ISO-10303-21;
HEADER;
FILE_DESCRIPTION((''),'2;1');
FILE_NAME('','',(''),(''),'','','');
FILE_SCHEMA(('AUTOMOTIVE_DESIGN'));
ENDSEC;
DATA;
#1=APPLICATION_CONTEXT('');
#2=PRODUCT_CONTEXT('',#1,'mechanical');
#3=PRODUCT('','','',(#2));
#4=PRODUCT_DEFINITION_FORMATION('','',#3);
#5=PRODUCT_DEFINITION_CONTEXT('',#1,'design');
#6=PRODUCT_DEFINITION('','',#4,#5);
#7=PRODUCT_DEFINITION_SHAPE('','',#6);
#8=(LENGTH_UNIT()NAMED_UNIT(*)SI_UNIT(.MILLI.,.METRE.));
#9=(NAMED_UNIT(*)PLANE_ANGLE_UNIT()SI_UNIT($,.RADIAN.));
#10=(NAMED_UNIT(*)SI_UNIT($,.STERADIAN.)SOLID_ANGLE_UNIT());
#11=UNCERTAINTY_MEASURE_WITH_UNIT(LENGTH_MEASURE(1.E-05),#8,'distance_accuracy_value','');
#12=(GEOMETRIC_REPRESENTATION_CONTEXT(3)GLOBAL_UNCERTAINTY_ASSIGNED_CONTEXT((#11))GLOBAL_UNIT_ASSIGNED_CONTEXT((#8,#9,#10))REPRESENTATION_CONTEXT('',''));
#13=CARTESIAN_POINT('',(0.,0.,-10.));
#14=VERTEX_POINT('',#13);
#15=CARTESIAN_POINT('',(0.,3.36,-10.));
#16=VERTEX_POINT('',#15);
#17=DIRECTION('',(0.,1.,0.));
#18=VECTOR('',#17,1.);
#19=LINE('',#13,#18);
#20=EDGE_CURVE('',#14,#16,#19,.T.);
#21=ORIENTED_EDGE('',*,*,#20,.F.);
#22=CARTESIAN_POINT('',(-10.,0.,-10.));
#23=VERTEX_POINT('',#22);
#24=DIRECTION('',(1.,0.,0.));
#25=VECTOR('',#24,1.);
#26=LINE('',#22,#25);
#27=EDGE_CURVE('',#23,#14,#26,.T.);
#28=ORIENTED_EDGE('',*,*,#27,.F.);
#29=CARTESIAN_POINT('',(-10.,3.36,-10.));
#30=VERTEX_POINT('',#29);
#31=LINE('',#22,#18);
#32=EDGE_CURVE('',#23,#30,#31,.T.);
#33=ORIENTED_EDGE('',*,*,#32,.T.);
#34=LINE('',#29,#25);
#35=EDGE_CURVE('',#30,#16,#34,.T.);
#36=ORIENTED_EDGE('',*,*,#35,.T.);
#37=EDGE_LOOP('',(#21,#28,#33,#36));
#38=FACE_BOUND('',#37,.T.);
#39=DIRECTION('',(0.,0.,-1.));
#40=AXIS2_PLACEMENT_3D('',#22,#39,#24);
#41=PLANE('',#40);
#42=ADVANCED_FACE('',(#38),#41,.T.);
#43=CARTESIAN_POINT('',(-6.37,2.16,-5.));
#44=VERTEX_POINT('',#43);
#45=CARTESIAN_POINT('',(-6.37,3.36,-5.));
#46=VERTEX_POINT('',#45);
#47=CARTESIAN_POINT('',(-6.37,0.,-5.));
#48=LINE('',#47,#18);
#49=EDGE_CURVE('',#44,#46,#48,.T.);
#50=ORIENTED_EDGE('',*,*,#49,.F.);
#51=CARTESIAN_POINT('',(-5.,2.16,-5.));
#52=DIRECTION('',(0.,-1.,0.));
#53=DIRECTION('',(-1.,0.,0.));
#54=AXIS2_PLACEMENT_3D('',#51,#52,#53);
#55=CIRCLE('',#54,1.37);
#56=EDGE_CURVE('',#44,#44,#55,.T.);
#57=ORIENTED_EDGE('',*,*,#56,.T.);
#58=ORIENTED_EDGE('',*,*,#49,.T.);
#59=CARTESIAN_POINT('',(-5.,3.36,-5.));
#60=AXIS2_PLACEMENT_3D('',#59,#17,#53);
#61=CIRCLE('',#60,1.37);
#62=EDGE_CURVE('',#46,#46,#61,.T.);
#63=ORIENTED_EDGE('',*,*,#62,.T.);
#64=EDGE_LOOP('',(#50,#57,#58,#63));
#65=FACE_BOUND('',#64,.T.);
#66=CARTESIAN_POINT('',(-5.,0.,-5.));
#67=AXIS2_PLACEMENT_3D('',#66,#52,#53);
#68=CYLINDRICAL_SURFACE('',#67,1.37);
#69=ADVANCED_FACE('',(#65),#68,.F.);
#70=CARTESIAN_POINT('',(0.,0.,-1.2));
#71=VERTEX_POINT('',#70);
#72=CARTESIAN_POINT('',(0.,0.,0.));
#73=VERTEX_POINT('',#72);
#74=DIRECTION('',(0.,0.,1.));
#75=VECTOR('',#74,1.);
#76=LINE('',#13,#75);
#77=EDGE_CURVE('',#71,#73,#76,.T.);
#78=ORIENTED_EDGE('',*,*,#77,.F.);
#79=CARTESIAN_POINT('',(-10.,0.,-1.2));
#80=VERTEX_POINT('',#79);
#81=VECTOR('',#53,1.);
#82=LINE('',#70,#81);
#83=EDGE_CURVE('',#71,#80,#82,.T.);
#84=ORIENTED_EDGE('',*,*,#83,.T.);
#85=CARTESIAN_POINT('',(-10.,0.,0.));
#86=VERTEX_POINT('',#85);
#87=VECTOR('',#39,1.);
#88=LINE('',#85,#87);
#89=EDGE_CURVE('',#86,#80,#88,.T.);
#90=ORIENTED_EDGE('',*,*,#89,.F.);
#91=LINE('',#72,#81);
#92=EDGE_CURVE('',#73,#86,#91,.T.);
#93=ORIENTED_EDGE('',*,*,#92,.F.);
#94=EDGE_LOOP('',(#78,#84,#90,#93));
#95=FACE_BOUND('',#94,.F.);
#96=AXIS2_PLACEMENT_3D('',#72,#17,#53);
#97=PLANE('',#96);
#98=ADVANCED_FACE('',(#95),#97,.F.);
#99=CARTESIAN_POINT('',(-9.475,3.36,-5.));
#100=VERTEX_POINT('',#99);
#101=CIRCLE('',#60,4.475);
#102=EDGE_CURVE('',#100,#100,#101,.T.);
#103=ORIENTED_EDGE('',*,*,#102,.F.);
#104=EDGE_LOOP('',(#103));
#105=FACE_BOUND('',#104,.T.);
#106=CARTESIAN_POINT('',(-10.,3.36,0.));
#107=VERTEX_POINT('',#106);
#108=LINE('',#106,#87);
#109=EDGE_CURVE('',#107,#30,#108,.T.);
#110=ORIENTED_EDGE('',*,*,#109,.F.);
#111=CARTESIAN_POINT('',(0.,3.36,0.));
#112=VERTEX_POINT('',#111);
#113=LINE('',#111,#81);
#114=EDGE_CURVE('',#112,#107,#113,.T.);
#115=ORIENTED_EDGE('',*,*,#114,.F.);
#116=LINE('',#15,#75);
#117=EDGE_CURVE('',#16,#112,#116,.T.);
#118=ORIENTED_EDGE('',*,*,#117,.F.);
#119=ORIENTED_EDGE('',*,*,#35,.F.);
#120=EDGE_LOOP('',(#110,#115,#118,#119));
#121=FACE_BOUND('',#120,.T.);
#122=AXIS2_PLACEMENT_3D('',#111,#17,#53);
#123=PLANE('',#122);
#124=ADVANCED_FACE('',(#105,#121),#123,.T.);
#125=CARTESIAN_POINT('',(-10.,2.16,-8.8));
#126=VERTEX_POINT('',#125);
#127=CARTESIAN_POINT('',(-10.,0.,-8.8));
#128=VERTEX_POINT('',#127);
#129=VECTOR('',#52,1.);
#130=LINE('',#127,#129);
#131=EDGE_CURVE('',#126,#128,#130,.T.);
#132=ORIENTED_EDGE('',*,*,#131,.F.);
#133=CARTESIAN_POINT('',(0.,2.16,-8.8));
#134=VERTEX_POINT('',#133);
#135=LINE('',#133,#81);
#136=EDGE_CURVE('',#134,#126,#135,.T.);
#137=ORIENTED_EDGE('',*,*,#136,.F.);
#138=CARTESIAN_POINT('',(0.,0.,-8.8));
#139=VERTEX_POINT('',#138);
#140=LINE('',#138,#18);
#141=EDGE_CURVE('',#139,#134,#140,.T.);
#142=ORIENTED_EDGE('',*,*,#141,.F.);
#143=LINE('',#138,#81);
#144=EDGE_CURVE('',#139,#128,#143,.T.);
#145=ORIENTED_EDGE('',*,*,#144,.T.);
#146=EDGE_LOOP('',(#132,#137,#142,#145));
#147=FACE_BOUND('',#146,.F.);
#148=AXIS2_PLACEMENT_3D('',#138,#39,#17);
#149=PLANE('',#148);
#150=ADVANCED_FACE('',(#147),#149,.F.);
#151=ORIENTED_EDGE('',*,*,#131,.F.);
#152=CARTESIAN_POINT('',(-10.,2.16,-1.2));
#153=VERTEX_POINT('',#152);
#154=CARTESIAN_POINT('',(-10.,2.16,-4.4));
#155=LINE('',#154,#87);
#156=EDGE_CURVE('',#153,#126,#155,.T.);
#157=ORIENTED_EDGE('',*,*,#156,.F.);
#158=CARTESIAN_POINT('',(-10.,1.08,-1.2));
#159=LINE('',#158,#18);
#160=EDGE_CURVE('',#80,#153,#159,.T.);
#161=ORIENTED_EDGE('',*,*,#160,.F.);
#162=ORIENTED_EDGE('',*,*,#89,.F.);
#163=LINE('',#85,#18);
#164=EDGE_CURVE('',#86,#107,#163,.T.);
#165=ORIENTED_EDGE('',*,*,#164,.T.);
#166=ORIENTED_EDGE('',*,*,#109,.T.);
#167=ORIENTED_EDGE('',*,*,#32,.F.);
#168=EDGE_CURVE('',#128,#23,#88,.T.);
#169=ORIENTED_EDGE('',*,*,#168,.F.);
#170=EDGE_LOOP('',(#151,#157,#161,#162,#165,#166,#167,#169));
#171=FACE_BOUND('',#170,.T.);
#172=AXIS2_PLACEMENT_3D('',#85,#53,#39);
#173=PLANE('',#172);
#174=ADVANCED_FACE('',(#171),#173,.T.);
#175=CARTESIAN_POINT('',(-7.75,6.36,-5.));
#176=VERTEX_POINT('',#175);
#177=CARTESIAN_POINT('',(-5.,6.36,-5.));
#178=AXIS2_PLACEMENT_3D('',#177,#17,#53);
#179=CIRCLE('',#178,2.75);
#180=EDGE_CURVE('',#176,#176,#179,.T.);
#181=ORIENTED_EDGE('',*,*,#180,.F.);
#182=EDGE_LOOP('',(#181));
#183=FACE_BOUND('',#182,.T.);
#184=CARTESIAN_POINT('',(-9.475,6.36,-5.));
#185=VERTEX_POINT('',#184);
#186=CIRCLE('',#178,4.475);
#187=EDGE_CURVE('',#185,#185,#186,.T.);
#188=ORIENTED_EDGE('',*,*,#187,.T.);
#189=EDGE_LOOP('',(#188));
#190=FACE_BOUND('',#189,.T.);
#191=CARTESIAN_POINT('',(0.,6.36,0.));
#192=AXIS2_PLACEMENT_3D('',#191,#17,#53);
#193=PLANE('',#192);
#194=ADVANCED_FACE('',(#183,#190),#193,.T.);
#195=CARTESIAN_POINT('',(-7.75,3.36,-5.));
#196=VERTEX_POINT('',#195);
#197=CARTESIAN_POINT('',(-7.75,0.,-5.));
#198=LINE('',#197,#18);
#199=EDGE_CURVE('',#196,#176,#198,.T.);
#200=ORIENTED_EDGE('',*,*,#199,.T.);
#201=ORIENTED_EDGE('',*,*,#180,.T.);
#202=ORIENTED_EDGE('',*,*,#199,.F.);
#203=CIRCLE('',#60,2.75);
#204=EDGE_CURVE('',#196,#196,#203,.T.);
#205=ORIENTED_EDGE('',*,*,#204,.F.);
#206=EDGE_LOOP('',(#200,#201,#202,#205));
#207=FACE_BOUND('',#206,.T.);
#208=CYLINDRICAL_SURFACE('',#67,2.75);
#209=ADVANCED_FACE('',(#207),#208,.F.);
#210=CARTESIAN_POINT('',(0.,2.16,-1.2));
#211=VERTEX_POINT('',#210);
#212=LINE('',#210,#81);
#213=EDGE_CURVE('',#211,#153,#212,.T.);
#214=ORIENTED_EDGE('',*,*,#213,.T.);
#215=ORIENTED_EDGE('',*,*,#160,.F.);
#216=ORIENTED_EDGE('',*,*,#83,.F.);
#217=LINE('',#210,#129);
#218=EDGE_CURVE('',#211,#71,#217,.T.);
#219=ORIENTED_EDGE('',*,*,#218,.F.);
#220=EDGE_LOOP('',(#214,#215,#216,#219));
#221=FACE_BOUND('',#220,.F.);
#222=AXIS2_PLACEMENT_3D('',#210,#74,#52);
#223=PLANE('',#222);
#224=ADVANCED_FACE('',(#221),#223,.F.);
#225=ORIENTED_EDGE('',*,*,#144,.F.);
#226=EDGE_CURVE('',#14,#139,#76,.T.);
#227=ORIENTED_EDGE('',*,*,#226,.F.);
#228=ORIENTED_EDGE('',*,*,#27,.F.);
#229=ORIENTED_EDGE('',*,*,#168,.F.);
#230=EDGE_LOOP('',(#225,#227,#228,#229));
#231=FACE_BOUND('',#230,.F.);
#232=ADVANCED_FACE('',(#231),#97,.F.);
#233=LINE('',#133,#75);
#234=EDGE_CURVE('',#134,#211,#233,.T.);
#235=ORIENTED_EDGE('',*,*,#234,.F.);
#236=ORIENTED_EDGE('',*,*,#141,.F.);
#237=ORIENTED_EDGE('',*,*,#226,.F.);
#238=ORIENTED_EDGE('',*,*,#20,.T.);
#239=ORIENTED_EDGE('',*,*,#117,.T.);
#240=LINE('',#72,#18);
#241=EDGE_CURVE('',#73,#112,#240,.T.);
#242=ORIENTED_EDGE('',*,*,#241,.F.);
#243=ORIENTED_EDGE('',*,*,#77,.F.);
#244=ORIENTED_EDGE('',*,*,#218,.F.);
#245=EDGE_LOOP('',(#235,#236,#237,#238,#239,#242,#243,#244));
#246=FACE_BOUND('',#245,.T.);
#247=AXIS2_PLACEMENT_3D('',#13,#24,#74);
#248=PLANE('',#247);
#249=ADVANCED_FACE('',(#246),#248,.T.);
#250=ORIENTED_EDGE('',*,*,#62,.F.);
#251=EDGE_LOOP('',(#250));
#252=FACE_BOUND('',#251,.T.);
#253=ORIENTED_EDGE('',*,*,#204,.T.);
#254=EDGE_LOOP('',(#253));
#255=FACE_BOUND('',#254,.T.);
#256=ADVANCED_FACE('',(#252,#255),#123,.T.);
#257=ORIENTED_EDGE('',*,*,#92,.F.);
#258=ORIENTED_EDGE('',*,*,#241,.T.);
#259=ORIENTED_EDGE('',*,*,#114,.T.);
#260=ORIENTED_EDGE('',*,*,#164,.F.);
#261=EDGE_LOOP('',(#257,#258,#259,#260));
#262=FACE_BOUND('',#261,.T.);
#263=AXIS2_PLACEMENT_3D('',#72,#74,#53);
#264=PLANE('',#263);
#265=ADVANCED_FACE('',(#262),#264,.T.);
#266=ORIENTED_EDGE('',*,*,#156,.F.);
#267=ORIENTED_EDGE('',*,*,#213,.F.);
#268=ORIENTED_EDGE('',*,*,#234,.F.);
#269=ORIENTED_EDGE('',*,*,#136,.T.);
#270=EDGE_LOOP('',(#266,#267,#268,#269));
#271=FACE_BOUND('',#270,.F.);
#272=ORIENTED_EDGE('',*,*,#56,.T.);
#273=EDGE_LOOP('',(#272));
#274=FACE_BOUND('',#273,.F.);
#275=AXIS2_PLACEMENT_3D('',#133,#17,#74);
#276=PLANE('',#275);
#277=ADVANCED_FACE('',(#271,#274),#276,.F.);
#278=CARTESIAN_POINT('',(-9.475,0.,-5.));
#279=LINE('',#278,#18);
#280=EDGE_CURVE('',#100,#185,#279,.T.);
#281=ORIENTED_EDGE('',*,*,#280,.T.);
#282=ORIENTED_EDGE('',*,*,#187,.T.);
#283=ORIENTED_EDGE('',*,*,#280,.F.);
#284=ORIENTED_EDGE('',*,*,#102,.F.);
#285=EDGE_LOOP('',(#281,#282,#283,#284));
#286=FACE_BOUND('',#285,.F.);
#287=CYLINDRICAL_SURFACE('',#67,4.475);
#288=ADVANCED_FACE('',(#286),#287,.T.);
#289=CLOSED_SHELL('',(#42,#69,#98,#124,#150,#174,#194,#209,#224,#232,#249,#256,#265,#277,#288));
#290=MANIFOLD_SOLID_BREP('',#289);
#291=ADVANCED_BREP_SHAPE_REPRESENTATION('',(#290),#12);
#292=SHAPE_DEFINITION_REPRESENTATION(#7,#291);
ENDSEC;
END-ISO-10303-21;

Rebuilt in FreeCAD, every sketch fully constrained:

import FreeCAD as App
import Part
import Sketcher

V = App.Vector

doc = App.newDocument("Part")
body = doc.addObject("PartDesign::Body", "Body")

# Sketch on XZ plane
sketch1 = body.newObject("Sketcher::SketchObject", "Sketch")
sketch1.AttachmentSupport = (doc.getObject("XZ_Plane"), [""])
sketch1.MapMode = "FlatFace"
sketch1.addGeometry(Part.LineSegment(V(-10, 0, 0), V(0, 0, 0)), False)
sketch1.addGeometry(Part.LineSegment(V(0, 0, 0), V(0, -10, 0)), False)
sketch1.addGeometry(Part.LineSegment(V(0, -10, 0), V(-10, -10, 0)), False)
sketch1.addGeometry(Part.LineSegment(V(-10, -10, 0), V(-10, 0, 0)), False)
sketch1.addGeometry(Part.Circle(V(-5, -5, 0), V(0, 0, 1), 4.475), False)
sketch1.addConstraint(Sketcher.Constraint("Coincident", 0, 2, 1, 1))
sketch1.addConstraint(Sketcher.Constraint("Coincident", 1, 2, 2, 1))
sketch1.addConstraint(Sketcher.Constraint("Coincident", 2, 2, 3, 1))
sketch1.addConstraint(Sketcher.Constraint("Coincident", 3, 2, 0, 1))
sketch1.addConstraint(Sketcher.Constraint("Horizontal", 0))
sketch1.addConstraint(Sketcher.Constraint("Vertical", 1))
sketch1.addConstraint(Sketcher.Constraint("Horizontal", 2))
sketch1.addConstraint(Sketcher.Constraint("Vertical", 3))
sketch1.addConstraint(Sketcher.Constraint("Coincident", 0, 2, -1, 1))
sketch1.addConstraint(Sketcher.Constraint("Equal", 2, 1))
sketch1.addConstraint(Sketcher.Constraint("Diameter", 4, 8.95))
sketch1.addConstraint(Sketcher.Constraint("DistanceX", 0, 1, 0, 2, 10.0))
sketch1.addConstraint(Sketcher.Constraint("DistanceX", 4, 3, -1, 1, 5.0))
sketch1.addConstraint(Sketcher.Constraint("DistanceY", 4, 3, -1, 1, 5.0))
pad1 = body.newObject("PartDesign::Pad", "Pad")
pad1.Profile = sketch1
pad1.Length = 3.36
pad1.Reversed = True

# Sketch on XZ plane
sketch2 = body.newObject("Sketcher::SketchObject", "Sketch001")
sketch2.AttachmentSupport = (doc.getObject("XZ_Plane"), [""])
sketch2.MapMode = "FlatFace"
sketch2.addGeometry(Part.Circle(V(-5, -5, 0), V(0, 0, 1), 4.475), False)
sketch2.addGeometry(Part.Circle(V(-5, -5, 0), V(0, 0, 1), 2.75), False)
sketch2.addConstraint(Sketcher.Constraint("Coincident", 1, 3, 0, 3))
sketch2.addConstraint(Sketcher.Constraint("Diameter", 1, 5.5))
sketch2.addConstraint(Sketcher.Constraint("Diameter", 0, 8.95))
sketch2.addConstraint(Sketcher.Constraint("DistanceX", 0, 3, -1, 1, 5.0))
sketch2.addConstraint(Sketcher.Constraint("DistanceY", 0, 3, -1, 1, 5.0))
pad2 = body.newObject("PartDesign::Pad", "Pad001")
pad2.Profile = sketch2
pad2.Length = 6.36
pad2.Reversed = True

# Sketch on XZ plane
sketch3 = body.newObject("Sketcher::SketchObject", "Sketch002")
sketch3.AttachmentSupport = (doc.getObject("XZ_Plane"), [""])
sketch3.MapMode = "FlatFace"
sketch3.addGeometry(Part.Circle(V(-5, -5, 0), V(0, 0, 1), 2.75), False)
sketch3.addGeometry(Part.Circle(V(-5, -5, 0), V(0, 0, 1), 1.37), False)
sketch3.addConstraint(Sketcher.Constraint("Coincident", 1, 3, 0, 3))
sketch3.addConstraint(Sketcher.Constraint("Diameter", 0, 5.5))
sketch3.addConstraint(Sketcher.Constraint("Diameter", 1, 2.74))
sketch3.addConstraint(Sketcher.Constraint("DistanceX", 0, 3, -1, 1, 5.0))
sketch3.addConstraint(Sketcher.Constraint("DistanceY", 0, 3, -1, 1, 5.0))
pad3 = body.newObject("PartDesign::Pad", "Pad002")
pad3.Profile = sketch3
pad3.Length = 3.36
pad3.Reversed = True

# Sketch on YZ plane
sketch4 = body.newObject("Sketcher::SketchObject", "Sketch003")
sketch4.AttachmentSupport = (doc.getObject("YZ_Plane"), [""])
sketch4.MapMode = "FlatFace"
sketch4.addGeometry(Part.LineSegment(V(2.16, -1.2, 0), V(0, -1.2, 0)), False)
sketch4.addGeometry(Part.LineSegment(V(0, -1.2, 0), V(0, -8.8, 0)), False)
sketch4.addGeometry(Part.LineSegment(V(0, -8.8, 0), V(2.16, -8.8, 0)), False)
sketch4.addGeometry(Part.LineSegment(V(2.16, -8.8, 0), V(2.16, -1.2, 0)), False)
sketch4.addConstraint(Sketcher.Constraint("Coincident", 0, 2, 1, 1))
sketch4.addConstraint(Sketcher.Constraint("Coincident", 1, 2, 2, 1))
sketch4.addConstraint(Sketcher.Constraint("Coincident", 2, 2, 3, 1))
sketch4.addConstraint(Sketcher.Constraint("Coincident", 3, 2, 0, 1))
sketch4.addConstraint(Sketcher.Constraint("Horizontal", 0))
sketch4.addConstraint(Sketcher.Constraint("Vertical", 1))
sketch4.addConstraint(Sketcher.Constraint("Horizontal", 2))
sketch4.addConstraint(Sketcher.Constraint("Vertical", 3))
sketch4.addConstraint(Sketcher.Constraint("PointOnObject", 0, 2, -2))
sketch4.addConstraint(Sketcher.Constraint("DistanceY", 1, 2, 1, 1, 7.6))
sketch4.addConstraint(Sketcher.Constraint("DistanceX", 0, 2, 0, 1, 2.16))
sketch4.addConstraint(Sketcher.Constraint("DistanceY", 0, 2, -1, 1, 1.2))
pocket1 = body.newObject("PartDesign::Pocket", "Pocket")
pocket1.Profile = sketch4
pocket1.Type = "ThroughAll"

doc.recompute()
